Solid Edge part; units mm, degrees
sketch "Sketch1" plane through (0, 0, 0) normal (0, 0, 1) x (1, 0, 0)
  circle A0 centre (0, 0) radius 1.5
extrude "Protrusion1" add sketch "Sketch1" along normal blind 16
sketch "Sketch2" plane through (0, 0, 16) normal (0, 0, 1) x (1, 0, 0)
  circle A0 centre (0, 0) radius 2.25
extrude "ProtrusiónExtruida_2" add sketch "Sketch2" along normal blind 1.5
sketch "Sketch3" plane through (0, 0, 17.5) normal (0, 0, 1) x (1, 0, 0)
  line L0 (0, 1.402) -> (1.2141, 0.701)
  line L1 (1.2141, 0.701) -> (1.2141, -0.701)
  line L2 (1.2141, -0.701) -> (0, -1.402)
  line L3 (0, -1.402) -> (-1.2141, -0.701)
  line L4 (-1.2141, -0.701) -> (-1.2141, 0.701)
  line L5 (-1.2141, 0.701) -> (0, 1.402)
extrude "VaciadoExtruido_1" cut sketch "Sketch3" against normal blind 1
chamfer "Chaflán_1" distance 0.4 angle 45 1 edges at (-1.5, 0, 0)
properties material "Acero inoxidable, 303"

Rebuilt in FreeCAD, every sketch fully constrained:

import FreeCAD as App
import Part
import Sketcher
from FreeCAD import Vector
Q = App.Units.Quantity


def edges_at(feature, points):
    """Names of the edges that pass closest to the given points."""
    edges = feature.Shape.Edges
    near = lambda p: min(range(len(edges)), key=lambda i: edges[i].distToShape(Part.Vertex(*p))[0])
    return sorted({f"Edge{near(p) + 1}" for p in points})

doc = App.newDocument("Part")
body = doc.addObject("PartDesign::Body", "Body")

sketch1 = doc.addObject("Sketcher::SketchObject", "Sketch")
body.addObject(sketch1)
sketch1.AttachmentSupport = (doc.XY_Plane, [""])
sketch1.MapMode = "FlatFace"
sketch1.addGeometry(Part.Circle(Vector(0, 0, 0), Vector(0, 0, 1), 1.5), False)
sketch1.addConstraint(Sketcher.Constraint("Coincident", 0, 3, -1, 1))
sketch1.addConstraint(Sketcher.Constraint("Diameter", 0, Q("3 mm")))
pad1 = doc.addObject("PartDesign::Pad", "Pad")
body.addObject(pad1)
pad1.Profile = sketch1
pad1.Length = 16

sketch2 = doc.addObject("Sketcher::SketchObject", "Sketch001")
body.addObject(sketch2)
sketch2.AttachmentSupport = (doc.XY_Plane, [""])
sketch2.MapMode = "FlatFace"
sketch2.AttachmentOffset = App.Placement(Vector(0, 0, 16), App.Rotation())
sketch2.addGeometry(Part.Circle(Vector(0, 0, 0), Vector(0, 0, 1), 2.25), False)
sketch2.addConstraint(Sketcher.Constraint("Coincident", 0, 3, -1, 1))
sketch2.addConstraint(Sketcher.Constraint("Diameter", 0, Q("4.5 mm")))
pad2 = doc.addObject("PartDesign::Pad", "Pad001")
body.addObject(pad2)
pad2.Profile = sketch2
pad2.Length = 1.5

sketch3 = doc.addObject("Sketcher::SketchObject", "Sketch002")
body.addObject(sketch3)
sketch3.AttachmentSupport = (doc.XY_Plane, [""])
sketch3.MapMode = "FlatFace"
sketch3.AttachmentOffset = App.Placement(Vector(0, 0, 17.5), App.Rotation())
sketch3.addGeometry(Part.LineSegment(Vector(1.2141, 0.701, 0), Vector(0, 1.402, 0)), False)
sketch3.addGeometry(Part.LineSegment(Vector(0, 1.402, 0), Vector(-1.2141, 0.701, 0)), False)
sketch3.addGeometry(Part.LineSegment(Vector(-1.2141, 0.701, 0), Vector(-1.2141, -0.701, 0)), False)
sketch3.addGeometry(Part.LineSegment(Vector(-1.2141, -0.701, 0), Vector(0, -1.402, 0)), False)
sketch3.addGeometry(Part.LineSegment(Vector(0, -1.402, 0), Vector(1.2141, -0.701, 0)), False)
sketch3.addGeometry(Part.LineSegment(Vector(1.2141, -0.701, 0), Vector(1.2141, 0.701, 0)), False)
sketch3.addConstraint(Sketcher.Constraint("Coincident", 0, 2, 1, 1))
sketch3.addConstraint(Sketcher.Constraint("Coincident", 1, 2, 2, 1))
sketch3.addConstraint(Sketcher.Constraint("Coincident", 2, 2, 3, 1))
sketch3.addConstraint(Sketcher.Constraint("Coincident", 3, 2, 4, 1))
sketch3.addConstraint(Sketcher.Constraint("Coincident", 4, 2, 5, 1))
sketch3.addConstraint(Sketcher.Constraint("Coincident", 5, 2, 0, 1))
sketch3.addConstraint(Sketcher.Constraint("Vertical", 2))
sketch3.addConstraint(Sketcher.Constraint("Vertical", 5))
sketch3.addConstraint(Sketcher.Constraint("Symmetric", 0, 2, 3, 2, -1, 1))
sketch3.addConstraint(Sketcher.Constraint("Symmetric", 1, 2, 4, 2, -1, 1))
sketch3.addConstraint(Sketcher.Constraint("PointOnObject", 0, 2, -2))
sketch3.addConstraint(Sketcher.Constraint("Parallel", 0, 3))
sketch3.addConstraint(Sketcher.Constraint("Horizontal", 2, 2, 4, 2))
sketch3.addConstraint(Sketcher.Constraint("DistanceY", 2, 2, 2, 1, Q("1.402 mm")))
sketch3.addConstraint(Sketcher.Constraint("Distance", 0, Q("1.402 mm")))
sketch3.addConstraint(Sketcher.Constraint("DistanceY", -1, 1, 0, 2, Q("1.402 mm")))
pocket1 = doc.addObject("PartDesign::Pocket", "Pocket")
body.addObject(pocket1)
pocket1.Profile = sketch3
pocket1.Length = 1
doc.recompute()

chamfer = doc.addObject("PartDesign::Chamfer", "Chamfer")
body.addObject(chamfer)
chamfer.Base = (pocket1, edges_at(pocket1, [(-1.5, 0, 0)]))
chamfer.Size = 0.4

doc.recompute()
